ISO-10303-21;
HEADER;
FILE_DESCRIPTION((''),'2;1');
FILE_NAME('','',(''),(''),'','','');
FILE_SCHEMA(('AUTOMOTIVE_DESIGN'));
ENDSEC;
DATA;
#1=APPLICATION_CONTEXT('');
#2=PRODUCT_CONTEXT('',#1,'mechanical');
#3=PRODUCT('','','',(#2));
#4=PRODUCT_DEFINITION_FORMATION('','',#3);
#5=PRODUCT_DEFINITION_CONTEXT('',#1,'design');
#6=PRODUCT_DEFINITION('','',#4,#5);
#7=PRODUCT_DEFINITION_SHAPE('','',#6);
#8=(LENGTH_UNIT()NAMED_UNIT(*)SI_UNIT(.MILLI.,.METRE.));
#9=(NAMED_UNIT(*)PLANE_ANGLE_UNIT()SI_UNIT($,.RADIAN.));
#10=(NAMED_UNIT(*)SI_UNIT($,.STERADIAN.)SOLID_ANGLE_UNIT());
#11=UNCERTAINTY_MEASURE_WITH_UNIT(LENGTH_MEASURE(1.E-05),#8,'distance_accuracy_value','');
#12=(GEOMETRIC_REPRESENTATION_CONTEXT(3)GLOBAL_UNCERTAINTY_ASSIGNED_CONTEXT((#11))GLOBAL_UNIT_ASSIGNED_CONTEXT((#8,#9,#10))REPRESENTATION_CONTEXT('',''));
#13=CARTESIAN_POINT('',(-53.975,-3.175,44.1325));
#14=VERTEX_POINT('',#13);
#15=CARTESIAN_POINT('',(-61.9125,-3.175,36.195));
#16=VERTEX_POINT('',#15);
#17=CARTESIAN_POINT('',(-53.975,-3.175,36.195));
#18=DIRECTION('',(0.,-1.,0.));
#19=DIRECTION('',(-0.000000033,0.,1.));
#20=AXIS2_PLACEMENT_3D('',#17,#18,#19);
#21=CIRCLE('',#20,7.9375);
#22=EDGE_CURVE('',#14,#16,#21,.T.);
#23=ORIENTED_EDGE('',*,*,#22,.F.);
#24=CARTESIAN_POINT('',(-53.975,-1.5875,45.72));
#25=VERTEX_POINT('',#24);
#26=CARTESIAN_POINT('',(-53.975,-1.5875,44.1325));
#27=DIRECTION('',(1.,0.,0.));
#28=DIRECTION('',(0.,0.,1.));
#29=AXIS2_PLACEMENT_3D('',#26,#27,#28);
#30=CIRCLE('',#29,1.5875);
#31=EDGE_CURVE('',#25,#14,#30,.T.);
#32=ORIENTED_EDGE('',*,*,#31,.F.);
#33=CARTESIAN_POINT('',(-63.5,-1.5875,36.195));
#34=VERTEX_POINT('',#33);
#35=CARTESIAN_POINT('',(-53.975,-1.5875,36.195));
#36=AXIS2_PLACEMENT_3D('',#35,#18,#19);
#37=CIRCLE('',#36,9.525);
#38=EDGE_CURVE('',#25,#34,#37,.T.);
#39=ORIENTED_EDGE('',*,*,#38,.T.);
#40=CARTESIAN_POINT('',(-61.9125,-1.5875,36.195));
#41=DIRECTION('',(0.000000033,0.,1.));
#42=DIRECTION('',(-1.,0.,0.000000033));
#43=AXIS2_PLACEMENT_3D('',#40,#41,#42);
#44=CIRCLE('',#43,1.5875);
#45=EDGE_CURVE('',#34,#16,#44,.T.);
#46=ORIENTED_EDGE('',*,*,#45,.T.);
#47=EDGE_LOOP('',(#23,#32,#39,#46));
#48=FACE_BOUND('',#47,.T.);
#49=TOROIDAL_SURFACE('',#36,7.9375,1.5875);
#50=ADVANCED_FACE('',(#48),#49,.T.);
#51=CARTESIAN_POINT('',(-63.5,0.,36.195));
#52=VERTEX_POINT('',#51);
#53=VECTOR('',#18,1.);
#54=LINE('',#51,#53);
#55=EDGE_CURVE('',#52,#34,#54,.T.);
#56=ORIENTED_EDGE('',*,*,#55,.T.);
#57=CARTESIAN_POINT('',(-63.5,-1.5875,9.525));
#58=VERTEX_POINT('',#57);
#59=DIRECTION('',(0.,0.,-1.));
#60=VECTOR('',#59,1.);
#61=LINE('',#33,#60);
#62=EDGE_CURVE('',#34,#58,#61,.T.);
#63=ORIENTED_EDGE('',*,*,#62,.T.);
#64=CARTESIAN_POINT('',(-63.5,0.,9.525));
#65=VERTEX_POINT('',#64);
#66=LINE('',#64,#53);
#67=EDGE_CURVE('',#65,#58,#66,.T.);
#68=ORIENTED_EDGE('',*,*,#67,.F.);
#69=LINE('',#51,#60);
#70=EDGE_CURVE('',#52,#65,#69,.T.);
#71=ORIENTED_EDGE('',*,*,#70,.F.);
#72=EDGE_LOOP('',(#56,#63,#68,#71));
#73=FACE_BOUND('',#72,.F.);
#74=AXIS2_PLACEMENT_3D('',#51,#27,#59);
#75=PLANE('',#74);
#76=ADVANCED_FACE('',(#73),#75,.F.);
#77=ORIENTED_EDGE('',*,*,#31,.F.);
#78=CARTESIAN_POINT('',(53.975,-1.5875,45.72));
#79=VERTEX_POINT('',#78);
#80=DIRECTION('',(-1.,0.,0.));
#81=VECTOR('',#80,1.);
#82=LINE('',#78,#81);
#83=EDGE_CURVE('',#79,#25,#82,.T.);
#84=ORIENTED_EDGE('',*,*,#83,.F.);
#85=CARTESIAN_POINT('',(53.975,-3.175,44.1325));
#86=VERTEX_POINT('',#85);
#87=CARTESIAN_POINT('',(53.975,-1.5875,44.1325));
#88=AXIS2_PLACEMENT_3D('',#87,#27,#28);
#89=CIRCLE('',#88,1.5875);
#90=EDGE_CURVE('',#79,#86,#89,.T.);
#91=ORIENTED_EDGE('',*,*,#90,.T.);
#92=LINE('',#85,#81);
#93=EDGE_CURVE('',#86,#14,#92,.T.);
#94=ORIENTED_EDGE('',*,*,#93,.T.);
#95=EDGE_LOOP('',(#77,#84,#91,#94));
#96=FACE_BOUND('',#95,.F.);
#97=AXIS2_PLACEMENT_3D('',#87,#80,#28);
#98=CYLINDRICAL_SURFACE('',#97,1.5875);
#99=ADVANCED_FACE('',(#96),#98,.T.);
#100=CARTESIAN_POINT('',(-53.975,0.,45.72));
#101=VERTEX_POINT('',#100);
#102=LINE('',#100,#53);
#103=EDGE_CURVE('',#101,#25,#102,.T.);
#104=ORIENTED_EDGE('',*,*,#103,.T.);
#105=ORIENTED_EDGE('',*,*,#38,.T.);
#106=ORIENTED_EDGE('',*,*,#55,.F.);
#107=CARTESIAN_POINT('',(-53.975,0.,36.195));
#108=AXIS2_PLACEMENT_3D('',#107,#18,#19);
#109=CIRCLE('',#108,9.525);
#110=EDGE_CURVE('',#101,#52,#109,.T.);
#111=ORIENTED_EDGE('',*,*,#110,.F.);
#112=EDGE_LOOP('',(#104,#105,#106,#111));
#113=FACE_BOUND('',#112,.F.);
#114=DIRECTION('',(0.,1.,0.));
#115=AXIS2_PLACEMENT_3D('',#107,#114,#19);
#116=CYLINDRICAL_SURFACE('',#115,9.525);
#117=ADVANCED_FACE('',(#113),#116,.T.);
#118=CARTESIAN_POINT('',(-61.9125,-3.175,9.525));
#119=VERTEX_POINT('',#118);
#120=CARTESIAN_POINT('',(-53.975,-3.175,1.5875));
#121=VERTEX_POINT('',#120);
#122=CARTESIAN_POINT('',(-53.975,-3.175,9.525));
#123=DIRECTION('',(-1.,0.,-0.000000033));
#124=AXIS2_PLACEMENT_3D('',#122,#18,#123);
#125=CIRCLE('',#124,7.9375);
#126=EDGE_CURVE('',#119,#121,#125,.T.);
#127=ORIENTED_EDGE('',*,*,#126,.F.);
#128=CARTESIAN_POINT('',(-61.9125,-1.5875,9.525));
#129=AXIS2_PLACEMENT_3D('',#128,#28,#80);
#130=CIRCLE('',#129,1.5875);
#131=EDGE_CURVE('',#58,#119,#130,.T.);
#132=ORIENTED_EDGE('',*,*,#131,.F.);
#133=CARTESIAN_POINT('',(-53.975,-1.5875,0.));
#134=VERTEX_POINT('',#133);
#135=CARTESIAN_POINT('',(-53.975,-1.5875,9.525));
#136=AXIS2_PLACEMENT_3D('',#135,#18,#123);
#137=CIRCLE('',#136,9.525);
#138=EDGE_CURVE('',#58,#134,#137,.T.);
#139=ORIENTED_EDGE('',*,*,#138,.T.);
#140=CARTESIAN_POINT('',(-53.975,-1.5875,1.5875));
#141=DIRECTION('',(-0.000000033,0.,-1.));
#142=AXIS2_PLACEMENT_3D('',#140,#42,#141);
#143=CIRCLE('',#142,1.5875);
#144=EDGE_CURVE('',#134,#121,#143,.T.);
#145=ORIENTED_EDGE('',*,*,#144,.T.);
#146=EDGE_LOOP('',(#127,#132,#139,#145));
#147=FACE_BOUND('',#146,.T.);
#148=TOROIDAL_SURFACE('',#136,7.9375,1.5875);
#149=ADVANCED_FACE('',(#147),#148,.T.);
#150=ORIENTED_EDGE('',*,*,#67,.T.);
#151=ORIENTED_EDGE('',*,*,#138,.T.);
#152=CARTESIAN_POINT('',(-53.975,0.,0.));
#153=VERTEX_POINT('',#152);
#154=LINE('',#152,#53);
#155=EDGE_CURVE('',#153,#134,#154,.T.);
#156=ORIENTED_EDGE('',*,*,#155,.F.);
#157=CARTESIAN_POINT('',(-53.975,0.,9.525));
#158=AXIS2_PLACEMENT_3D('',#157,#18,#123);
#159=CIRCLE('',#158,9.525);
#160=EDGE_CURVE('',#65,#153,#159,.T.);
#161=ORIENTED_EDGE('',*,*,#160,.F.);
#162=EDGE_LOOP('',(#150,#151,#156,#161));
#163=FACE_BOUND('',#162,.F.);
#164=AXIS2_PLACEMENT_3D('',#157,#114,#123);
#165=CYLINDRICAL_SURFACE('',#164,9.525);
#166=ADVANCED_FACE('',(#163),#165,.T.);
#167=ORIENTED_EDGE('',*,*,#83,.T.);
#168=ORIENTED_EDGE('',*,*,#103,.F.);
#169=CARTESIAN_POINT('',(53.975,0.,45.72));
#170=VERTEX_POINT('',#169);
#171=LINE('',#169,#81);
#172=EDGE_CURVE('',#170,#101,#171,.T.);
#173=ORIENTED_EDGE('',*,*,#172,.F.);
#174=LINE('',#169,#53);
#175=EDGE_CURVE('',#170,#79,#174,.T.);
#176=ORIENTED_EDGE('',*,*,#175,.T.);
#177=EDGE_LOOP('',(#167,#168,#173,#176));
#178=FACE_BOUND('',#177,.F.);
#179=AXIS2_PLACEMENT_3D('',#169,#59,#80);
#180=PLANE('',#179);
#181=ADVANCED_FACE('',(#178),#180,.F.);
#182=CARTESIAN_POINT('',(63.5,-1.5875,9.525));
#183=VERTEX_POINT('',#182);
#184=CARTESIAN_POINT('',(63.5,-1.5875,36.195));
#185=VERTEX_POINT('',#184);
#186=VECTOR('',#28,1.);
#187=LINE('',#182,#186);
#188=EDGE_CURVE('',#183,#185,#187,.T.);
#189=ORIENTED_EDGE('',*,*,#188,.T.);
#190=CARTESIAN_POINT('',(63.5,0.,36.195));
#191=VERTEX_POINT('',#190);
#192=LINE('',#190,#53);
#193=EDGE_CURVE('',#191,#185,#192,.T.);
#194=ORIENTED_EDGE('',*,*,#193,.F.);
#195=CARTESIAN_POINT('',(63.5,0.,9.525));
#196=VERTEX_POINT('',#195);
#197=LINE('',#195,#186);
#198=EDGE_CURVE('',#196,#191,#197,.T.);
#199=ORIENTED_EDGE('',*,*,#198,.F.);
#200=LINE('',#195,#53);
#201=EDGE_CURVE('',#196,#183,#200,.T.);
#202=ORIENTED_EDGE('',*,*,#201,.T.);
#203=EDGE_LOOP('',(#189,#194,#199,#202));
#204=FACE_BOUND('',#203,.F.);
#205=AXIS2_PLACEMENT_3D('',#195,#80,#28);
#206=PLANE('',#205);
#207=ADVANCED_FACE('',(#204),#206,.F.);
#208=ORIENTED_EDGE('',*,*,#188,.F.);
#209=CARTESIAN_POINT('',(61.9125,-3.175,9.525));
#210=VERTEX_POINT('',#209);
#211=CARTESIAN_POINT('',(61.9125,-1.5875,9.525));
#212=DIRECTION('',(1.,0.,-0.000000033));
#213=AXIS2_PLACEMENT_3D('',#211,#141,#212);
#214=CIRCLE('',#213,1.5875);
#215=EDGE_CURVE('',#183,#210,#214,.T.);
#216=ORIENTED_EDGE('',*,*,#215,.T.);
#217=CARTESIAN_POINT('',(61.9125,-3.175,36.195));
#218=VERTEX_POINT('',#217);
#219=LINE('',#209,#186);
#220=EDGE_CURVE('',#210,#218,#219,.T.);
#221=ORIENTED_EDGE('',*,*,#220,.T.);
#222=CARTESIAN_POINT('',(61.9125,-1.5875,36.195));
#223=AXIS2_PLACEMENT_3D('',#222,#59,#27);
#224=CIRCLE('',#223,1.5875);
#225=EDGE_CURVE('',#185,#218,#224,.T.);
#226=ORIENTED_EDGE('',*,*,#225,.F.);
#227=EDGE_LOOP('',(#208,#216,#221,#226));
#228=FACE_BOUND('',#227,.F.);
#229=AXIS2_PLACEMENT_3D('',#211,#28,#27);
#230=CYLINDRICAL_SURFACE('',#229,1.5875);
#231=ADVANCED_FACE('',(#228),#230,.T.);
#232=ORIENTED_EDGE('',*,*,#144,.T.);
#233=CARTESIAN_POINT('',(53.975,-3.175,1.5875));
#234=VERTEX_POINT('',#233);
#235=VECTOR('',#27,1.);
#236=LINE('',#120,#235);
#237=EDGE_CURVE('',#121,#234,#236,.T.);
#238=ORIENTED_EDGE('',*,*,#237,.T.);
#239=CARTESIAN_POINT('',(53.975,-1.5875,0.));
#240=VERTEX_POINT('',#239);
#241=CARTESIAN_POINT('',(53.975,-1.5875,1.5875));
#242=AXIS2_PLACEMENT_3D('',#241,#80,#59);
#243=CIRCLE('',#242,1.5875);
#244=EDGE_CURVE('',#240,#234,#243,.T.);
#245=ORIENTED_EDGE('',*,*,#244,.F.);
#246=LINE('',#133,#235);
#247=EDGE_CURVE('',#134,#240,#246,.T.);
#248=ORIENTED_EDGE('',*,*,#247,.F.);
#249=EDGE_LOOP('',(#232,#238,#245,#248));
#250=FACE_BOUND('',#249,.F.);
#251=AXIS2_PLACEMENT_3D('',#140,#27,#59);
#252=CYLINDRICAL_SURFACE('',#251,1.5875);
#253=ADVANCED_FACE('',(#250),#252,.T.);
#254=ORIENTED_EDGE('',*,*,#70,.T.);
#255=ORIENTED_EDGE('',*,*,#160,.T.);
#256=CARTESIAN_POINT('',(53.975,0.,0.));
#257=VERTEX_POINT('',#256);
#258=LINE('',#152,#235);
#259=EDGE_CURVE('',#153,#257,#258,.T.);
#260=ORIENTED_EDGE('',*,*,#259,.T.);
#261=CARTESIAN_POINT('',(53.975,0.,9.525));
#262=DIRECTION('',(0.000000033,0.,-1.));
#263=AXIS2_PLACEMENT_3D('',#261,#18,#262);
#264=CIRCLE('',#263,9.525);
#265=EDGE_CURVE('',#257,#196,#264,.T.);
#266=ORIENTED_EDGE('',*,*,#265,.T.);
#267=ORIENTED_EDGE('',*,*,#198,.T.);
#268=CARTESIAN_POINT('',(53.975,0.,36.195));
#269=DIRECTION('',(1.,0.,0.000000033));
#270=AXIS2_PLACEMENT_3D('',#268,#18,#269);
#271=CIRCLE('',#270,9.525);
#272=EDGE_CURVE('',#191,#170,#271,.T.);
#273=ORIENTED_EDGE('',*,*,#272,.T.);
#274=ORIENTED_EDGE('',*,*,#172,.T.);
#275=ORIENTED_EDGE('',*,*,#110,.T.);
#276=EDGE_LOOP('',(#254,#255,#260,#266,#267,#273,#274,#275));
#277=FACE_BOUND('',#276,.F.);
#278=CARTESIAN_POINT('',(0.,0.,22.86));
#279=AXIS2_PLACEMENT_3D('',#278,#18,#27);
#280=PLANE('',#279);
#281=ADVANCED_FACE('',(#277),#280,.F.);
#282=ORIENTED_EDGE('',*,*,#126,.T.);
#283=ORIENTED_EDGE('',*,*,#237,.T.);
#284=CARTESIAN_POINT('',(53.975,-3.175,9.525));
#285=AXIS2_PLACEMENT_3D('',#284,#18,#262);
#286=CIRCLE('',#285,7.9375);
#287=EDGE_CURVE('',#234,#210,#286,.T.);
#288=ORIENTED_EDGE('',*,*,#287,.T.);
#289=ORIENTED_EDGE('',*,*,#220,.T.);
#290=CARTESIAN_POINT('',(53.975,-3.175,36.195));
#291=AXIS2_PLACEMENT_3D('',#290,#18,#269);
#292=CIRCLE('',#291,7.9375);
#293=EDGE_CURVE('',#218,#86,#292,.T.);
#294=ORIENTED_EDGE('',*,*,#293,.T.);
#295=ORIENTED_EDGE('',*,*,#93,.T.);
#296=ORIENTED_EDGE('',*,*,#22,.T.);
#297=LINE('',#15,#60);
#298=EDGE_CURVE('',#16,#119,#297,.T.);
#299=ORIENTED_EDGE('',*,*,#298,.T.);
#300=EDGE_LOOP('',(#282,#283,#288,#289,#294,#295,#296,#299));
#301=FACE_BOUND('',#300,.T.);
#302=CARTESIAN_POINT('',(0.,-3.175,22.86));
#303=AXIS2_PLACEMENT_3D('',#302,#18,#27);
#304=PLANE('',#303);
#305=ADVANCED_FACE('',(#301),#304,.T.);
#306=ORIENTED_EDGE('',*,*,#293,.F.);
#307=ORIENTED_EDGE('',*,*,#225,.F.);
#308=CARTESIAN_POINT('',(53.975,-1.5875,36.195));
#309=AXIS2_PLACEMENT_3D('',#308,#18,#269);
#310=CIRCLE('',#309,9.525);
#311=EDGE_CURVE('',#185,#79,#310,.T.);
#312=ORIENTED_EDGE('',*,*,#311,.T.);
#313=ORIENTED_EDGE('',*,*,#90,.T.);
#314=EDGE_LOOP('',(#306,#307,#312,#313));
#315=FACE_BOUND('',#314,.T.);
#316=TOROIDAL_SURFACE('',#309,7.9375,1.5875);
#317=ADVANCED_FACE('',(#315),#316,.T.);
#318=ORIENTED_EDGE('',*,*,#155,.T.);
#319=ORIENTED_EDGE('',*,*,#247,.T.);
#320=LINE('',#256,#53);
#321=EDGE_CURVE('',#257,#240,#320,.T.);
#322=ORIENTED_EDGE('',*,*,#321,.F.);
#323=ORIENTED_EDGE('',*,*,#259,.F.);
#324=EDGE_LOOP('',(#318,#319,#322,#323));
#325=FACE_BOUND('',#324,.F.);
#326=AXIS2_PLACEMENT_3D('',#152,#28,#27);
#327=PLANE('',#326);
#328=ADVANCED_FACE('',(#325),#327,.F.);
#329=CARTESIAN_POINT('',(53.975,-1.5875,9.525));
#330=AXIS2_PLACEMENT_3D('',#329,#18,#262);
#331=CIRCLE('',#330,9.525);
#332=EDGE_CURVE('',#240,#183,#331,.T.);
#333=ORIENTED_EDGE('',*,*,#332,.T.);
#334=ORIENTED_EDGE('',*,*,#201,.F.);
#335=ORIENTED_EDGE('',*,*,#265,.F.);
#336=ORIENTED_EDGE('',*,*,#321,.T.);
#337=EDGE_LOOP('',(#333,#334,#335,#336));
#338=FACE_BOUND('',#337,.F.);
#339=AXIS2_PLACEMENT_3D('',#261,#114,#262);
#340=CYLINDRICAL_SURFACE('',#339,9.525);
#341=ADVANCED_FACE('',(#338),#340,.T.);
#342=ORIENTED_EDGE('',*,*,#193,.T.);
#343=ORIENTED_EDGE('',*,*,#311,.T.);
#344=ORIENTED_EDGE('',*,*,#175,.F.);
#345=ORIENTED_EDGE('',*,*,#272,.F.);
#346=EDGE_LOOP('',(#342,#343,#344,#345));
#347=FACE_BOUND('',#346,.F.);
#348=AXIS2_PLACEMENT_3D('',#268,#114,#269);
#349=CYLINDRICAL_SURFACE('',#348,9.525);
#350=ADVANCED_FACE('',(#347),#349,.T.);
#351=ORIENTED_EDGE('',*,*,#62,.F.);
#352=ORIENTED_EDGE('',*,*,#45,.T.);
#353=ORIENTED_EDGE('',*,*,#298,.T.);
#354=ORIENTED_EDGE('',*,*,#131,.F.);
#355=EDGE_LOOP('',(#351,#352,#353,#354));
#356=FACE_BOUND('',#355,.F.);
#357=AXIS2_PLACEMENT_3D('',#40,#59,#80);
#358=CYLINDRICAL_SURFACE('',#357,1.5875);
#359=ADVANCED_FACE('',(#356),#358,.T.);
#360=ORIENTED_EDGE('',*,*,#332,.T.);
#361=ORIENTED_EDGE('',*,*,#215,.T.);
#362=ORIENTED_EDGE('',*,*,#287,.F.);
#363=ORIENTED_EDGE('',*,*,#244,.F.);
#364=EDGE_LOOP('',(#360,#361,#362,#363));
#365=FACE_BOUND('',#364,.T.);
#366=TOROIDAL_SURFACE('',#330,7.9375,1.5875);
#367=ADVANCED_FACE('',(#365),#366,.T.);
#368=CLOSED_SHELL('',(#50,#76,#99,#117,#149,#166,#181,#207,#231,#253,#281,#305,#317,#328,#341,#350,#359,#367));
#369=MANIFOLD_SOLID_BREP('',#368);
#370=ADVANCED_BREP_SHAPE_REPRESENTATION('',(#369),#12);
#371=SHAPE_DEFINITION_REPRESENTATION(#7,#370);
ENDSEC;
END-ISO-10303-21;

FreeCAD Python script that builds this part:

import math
import FreeCAD as App
import Part
import Sketcher
Q = App.Units.Quantity


def edges_at(feature, points):
    """Names of the edges that pass closest to the given points."""
    edges = feature.Shape.Edges
    near = lambda p: min(range(len(edges)), key=lambda i: edges[i].distToShape(Part.Vertex(*p))[0])
    return sorted({f"Edge{near(p) + 1}" for p in points})

doc = App.newDocument("Part")
body = doc.addObject("PartDesign::Body", "Body")

# Sketch on XZ plane
sketch1 = body.newObject("Sketcher::SketchObject", "Sketch")
sketch1.AttachmentSupport = (doc.getObject("XZ_Plane"), [""])
sketch1.MapMode = "FlatFace"
sketch1.addGeometry(Part.LineSegment(App.Vector(54, 46, 0), App.Vector(-54, 46, 0)), False)
sketch1.addGeometry(Part.ArcOfCircle(Part.Circle(App.Vector(-54, 36, 0), App.Vector(0, 0, 1), 10), math.radians(90), math.radians(180)), False)
sketch1.addGeometry(Part.LineSegment(App.Vector(-64, 36, 0), App.Vector(-64, 10, 0)), False)
sketch1.addGeometry(Part.ArcOfCircle(Part.Circle(App.Vector(-54, 10, 0), App.Vector(0, 0, 1), 10), math.radians(-180), math.radians(-90)), False)
sketch1.addGeometry(Part.LineSegment(App.Vector(-54, 0, 0), App.Vector(54, 0, 0)), False)
sketch1.addGeometry(Part.ArcOfCircle(Part.Circle(App.Vector(54, 10, 0), App.Vector(0, 0, 1), 10), math.radians(-90), math.radians(0)), False)
sketch1.addGeometry(Part.LineSegment(App.Vector(64, 10, 0), App.Vector(64, 36, 0)), False)
sketch1.addGeometry(Part.ArcOfCircle(Part.Circle(App.Vector(54, 36, 0), App.Vector(0, 0, 1), 10), math.radians(0), math.radians(90)), False)
sketch1.addConstraint(Sketcher.Constraint("Tangent", 0, 2, 1, 1))
sketch1.addConstraint(Sketcher.Constraint("Tangent", 1, 2, 2, 1))
sketch1.addConstraint(Sketcher.Constraint("Tangent", 2, 2, 3, 1))
sketch1.addConstraint(Sketcher.Constraint("Tangent", 3, 2, 4, 1))
sketch1.addConstraint(Sketcher.Constraint("Tangent", 4, 2, 5, 1))
sketch1.addConstraint(Sketcher.Constraint("Tangent", 5, 2, 6, 1))
sketch1.addConstraint(Sketcher.Constraint("Tangent", 6, 2, 7, 1))
sketch1.addConstraint(Sketcher.Constraint("Tangent", 7, 2, 0, 1))
sketch1.addConstraint(Sketcher.Constraint("Horizontal", 0))
sketch1.addConstraint(Sketcher.Constraint("Vertical", 2))
sketch1.addConstraint(Sketcher.Constraint("Horizontal", 4))
sketch1.addConstraint(Sketcher.Constraint("Vertical", 6))
sketch1.addConstraint(Sketcher.Constraint("Equal", 1, 3))
sketch1.addConstraint(Sketcher.Constraint("Equal", 3, 5))
sketch1.addConstraint(Sketcher.Constraint("Equal", 5, 7))
sketch1.addConstraint(Sketcher.Constraint("Symmetric", 3, 2, 4, 2, -1, 1))
sketch1.addConstraint(Sketcher.Constraint("Radius", 1, Q("0.375 in")))
sketch1.addConstraint(Sketcher.Constraint("DistanceX", 0, 2, 0, 1, Q("4.25 in")))
sketch1.addConstraint(Sketcher.Constraint("DistanceY", 2, 2, 2, 1, Q("1.05 in")))
pad1 = body.newObject("PartDesign::Pad", "Pad")
pad1.Profile = sketch1
pad1.Length = Q("0.125 in")
doc.recompute()

fillet = body.newObject("PartDesign::Fillet", "Fillet")
fillet.Base = (pad1, edges_at(pad1, [
    (0, -3.175, 45.72),
    (-60.71, -3.175, 42.93),
    (-63.5, -3.175, 22.86),
    (-60.71, -3.175, 2.79),
    (0, -3.175, 0),
    (60.71, -3.175, 2.79),
    (63.5, -3.175, 22.86),
    (60.71, -3.175, 42.93),
]))
fillet.Radius = Q("0.0625 in")

doc.recompute()
